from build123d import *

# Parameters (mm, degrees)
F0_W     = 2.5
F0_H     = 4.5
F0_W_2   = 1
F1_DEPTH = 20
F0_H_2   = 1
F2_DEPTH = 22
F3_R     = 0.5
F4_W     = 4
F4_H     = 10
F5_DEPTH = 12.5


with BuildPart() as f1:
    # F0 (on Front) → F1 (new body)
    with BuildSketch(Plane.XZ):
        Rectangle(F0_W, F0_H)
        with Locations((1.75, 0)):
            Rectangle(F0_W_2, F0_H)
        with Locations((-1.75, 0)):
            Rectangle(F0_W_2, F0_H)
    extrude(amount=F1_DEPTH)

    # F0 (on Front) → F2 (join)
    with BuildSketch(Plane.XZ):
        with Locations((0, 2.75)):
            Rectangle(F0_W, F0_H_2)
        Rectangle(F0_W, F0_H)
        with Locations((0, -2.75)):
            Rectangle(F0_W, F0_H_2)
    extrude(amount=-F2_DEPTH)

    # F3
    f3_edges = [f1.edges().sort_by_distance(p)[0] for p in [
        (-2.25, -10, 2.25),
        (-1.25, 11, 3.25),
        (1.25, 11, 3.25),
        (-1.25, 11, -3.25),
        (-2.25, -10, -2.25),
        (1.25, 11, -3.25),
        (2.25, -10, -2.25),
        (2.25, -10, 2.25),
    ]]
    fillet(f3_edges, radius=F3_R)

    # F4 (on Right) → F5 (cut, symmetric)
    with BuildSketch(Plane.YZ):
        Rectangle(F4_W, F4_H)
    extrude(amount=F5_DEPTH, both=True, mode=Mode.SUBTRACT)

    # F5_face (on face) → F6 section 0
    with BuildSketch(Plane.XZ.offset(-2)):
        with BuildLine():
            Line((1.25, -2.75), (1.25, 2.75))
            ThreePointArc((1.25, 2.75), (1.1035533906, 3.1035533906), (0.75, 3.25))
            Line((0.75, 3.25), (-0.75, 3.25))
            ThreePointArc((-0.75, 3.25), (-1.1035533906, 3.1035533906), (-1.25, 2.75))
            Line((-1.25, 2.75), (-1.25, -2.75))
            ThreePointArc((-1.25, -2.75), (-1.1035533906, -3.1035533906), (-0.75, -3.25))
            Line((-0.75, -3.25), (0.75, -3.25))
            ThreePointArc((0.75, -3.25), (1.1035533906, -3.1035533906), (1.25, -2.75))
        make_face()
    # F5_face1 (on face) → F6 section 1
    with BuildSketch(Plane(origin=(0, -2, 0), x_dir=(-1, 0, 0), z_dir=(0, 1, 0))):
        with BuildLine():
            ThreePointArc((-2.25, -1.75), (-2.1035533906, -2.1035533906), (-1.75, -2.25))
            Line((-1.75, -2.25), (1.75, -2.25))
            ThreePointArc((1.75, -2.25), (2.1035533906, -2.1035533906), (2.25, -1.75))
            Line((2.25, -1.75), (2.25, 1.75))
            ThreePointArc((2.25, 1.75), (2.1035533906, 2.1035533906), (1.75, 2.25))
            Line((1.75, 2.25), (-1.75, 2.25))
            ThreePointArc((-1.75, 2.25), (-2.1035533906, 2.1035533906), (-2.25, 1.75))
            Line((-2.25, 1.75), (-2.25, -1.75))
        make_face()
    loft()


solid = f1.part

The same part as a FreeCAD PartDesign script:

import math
import FreeCAD as App
import Part
import Sketcher

V = App.Vector
Q = App.Units.Quantity


def edges_at(feature, points):
    """Names of the edges that pass closest to the given points."""
    edges = feature.Shape.Edges
    near = lambda p: min(range(len(edges)), key=lambda i: edges[i].distToShape(Part.Vertex(*p))[0])
    return sorted({f"Edge{near(p) + 1}" for p in points})


def add_polygon(sketch, points):
    """Adds a closed chain of lines whose ends are joined by coincident constraints."""
    first, n = sketch.GeometryCount, len(points)
    for a, b in zip(points, points[1:] + points[:1]):
        sketch.addGeometry(Part.LineSegment(App.Vector(*a, 0), App.Vector(*b, 0)), False)
    for i in range(n):
        sketch.addConstraint(Sketcher.Constraint("Coincident", first + i, 2, first + (i + 1) % n, 1))

doc = App.newDocument("Part")
body = doc.addObject("PartDesign::Body", "Body")
body.AllowCompound = True

sketch1 = body.newObject("Sketcher::SketchObject", "Sketch")
sketch1.AttachmentSupport = (doc.getObject("XZ_Plane"), [""])
sketch1.MapMode = "FlatFace"
add_polygon(sketch1, [(2.2, -2.2), (2.2, 2.2), (-2.2, 2.2), (-2.2, -2.2)])
sketch1.addConstraint([
    Sketcher.Constraint("Vertical", 0),
    Sketcher.Constraint("Horizontal", 1),
    Sketcher.Constraint("Vertical", 2),
    Sketcher.Constraint("Horizontal", 3),
    Sketcher.Constraint("Symmetric", 0, 2, 2, 2, -1, 1),
    Sketcher.Constraint("Equal", 3, 0),
    Sketcher.Constraint("DistanceX", 1, 2, 1, 1, Q("4.5 mm")),
])
pad1 = body.newObject("PartDesign::Pad", "Pad")
pad1.Profile = sketch1
pad1.Length = 20

sketch2 = body.newObject("Sketcher::SketchObject", "Sketch001")
sketch2.AttachmentSupport = (doc.getObject("XZ_Plane"), [""])
sketch2.MapMode = "FlatFace"
add_polygon(sketch2, [(-1.2, 3.2), (-1.2, -3.2), (1.2, -3.2), (1.2, 3.2)])
sketch2.addConstraint([
    Sketcher.Constraint("Vertical", 0),
    Sketcher.Constraint("Horizontal", 1),
    Sketcher.Constraint("Vertical", 2),
    Sketcher.Constraint("Horizontal", 3),
    Sketcher.Constraint("Symmetric", 0, 2, 2, 2, -1, 1),
    Sketcher.Constraint("DistanceX", 1, 1, 1, 2, Q("2.5 mm")),
    Sketcher.Constraint("DistanceY", 0, 2, 0, 1, Q("6.5 mm")),
])
pad2 = body.newObject("PartDesign::Pad", "Pad001")
pad2.Profile = sketch2
pad2.Length = 22
pad2.Reversed = True
doc.recompute()

fillet = body.newObject("PartDesign::Fillet", "Fillet")
fillet.Base = (pad2, edges_at(pad2, [
    (-2.25, -10, 2.25),
    (-1.25, 11, 3.25),
    (1.25, 11, 3.25),
    (-1.25, 11, -3.25),
    (-2.25, -10, -2.25),
    (1.25, 11, -3.25),
    (2.25, -10, -2.25),
    (2.25, -10, 2.25),
]))
fillet.Radius = 0.5

sketch3 = body.newObject("Sketcher::SketchObject", "Sketch002")
sketch3.AttachmentSupport = (doc.getObject("YZ_Plane"), [""])
sketch3.MapMode = "FlatFace"
add_polygon(sketch3, [(-2, 5), (-2, -5), (2, -5), (2, 5)])
sketch3.addConstraint([
    Sketcher.Constraint("Vertical", 0),
    Sketcher.Constraint("Horizontal", 1),
    Sketcher.Constraint("Vertical", 2),
    Sketcher.Constraint("Horizontal", 3),
    Sketcher.Constraint("Symmetric", 0, 2, 2, 2, -1, 1),
    Sketcher.Constraint("DistanceX", 1, 1, 1, 2, Q("4 mm")),
    Sketcher.Constraint("DistanceY", 0, 2, 0, 1, Q("10 mm")),
])
pocket1 = body.newObject("PartDesign::Pocket", "Pocket")
pocket1.Profile = sketch3
pocket1.Length = 25
pocket1.Midplane = True

sketch4 = body.newObject("Sketcher::SketchObject", "Sketch003")
sketch4.AttachmentSupport = (doc.getObject("XZ_Plane"), [""])
sketch4.MapMode = "FlatFace"
sketch4.AttachmentOffset = App.Placement(V(0, 0, -2), App.Rotation())
sketch4.addGeometry([
    Part.LineSegment(V(1.2, -2.8, 0), V(1.2, 2.8, 0)),
    Part.ArcOfCircle(Part.Circle(V(0.8, 2.8, 0), V(0, 0, 1), 0.5), math.radians(0), math.radians(90)),
    Part.LineSegment(V(0.8, 3.2, 0), V(-0.8, 3.2, 0)),
    Part.ArcOfCircle(Part.Circle(V(-0.8, 2.8, 0), V(0, 0, 1), 0.5), math.radians(90), math.radians(180)),
    Part.LineSegment(V(-1.2, 2.8, 0), V(-1.2, -2.8, 0)),
    Part.ArcOfCircle(Part.Circle(V(-0.8, -2.8, 0), V(0, 0, 1), 0.5), math.radians(180), math.radians(270)),
    Part.LineSegment(V(-0.8, -3.2, 0), V(0.8, -3.2, 0)),
    Part.ArcOfCircle(Part.Circle(V(0.8, -2.8, 0), V(0, 0, 1), 0.5), math.radians(-90), math.radians(0)),
], False)
sketch4.addConstraint([
    Sketcher.Constraint("Tangent", 0, 2, 1, 1),
    Sketcher.Constraint("Tangent", 1, 2, 2, 1),
    Sketcher.Constraint("Tangent", 2, 2, 3, 1),
    Sketcher.Constraint("Tangent", 3, 2, 4, 1),
    Sketcher.Constraint("Tangent", 4, 2, 5, 1),
    Sketcher.Constraint("Tangent", 5, 2, 6, 1),
    Sketcher.Constraint("Tangent", 6, 2, 7, 1),
    Sketcher.Constraint("Tangent", 7, 2, 0, 1),
    Sketcher.Constraint("Vertical", 0),
    Sketcher.Constraint("Horizontal", 2),
    Sketcher.Constraint("Vertical", 4),
    Sketcher.Constraint("Horizontal", 6),
    Sketcher.Constraint("Equal", 1, 3),
    Sketcher.Constraint("Equal", 3, 5),
    Sketcher.Constraint("Equal", 5, 7),
    Sketcher.Constraint("Symmetric", 1, 3, 5, 3, -1, 1),
    Sketcher.Constraint("Radius", 1, Q("0.5 mm")),
    Sketcher.Constraint("DistanceX", 2, 2, 2, 1, Q("1.5 mm")),
    Sketcher.Constraint("DistanceY", 0, 1, 0, 2, Q("5.5 mm")),
])

sketch5 = body.newObject("Sketcher::SketchObject", "Sketch004")
sketch5.AttachmentSupport = (doc.getObject("XZ_Plane"), [""])
sketch5.MapMode = "FlatFace"
sketch5.AttachmentOffset = App.Placement(V(0, 0, 2), App.Rotation())
sketch5.addGeometry([
    Part.ArcOfCircle(Part.Circle(V(1.8, -1.8, 0), V(0, 0, 1), 0.5), math.radians(-90), math.radians(0)),
    Part.LineSegment(V(1.8, -2.2, 0), V(-1.8, -2.2, 0)),
    Part.ArcOfCircle(Part.Circle(V(-1.8, -1.8, 0), V(0, 0, 1), 0.5), math.radians(180), math.radians(270)),
    Part.LineSegment(V(-2.2, -1.8, 0), V(-2.2, 1.8, 0)),
    Part.ArcOfCircle(Part.Circle(V(-1.8, 1.8, 0), V(0, 0, 1), 0.5), math.radians(90), math.radians(180)),
    Part.LineSegment(V(-1.8, 2.2, 0), V(1.8, 2.2, 0)),
    Part.ArcOfCircle(Part.Circle(V(1.8, 1.8, 0), V(0, 0, 1), 0.5), math.radians(0), math.radians(90)),
    Part.LineSegment(V(2.2, 1.8, 0), V(2.2, -1.8, 0)),
], False)
sketch5.addConstraint([
    Sketcher.Constraint("Tangent", 0, 1, 1, 1),
    Sketcher.Constraint("Tangent", 1, 2, 2, 2),
    Sketcher.Constraint("Tangent", 2, 1, 3, 1),
    Sketcher.Constraint("Tangent", 3, 2, 4, 2),
    Sketcher.Constraint("Tangent", 4, 1, 5, 1),
    Sketcher.Constraint("Tangent", 5, 2, 6, 2),
    Sketcher.Constraint("Tangent", 6, 1, 7, 1),
    Sketcher.Constraint("Tangent", 7, 2, 0, 2),
    Sketcher.Constraint("Horizontal", 1),
    Sketcher.Constraint("Vertical", 3),
    Sketcher.Constraint("Horizontal", 5),
    Sketcher.Constraint("Vertical", 7),
    Sketcher.Constraint("Equal", 0, 2),
    Sketcher.Constraint("Equal", 2, 4),
    Sketcher.Constraint("Equal", 4, 6),
    Sketcher.Constraint("Symmetric", 0, 3, 4, 3, -1, 1),
    Sketcher.Constraint("Equal", 5, 3),
    Sketcher.Constraint("Radius", 0, Q("0.5 mm")),
    Sketcher.Constraint("DistanceX", 1, 2, 1, 1, Q("3.5 mm")),
])

additiveloft = body.newObject("PartDesign::AdditiveLoft", "AdditiveLoft")
additiveloft.Profile = sketch4
additiveloft.Sections = [sketch5]

doc.recompute()
